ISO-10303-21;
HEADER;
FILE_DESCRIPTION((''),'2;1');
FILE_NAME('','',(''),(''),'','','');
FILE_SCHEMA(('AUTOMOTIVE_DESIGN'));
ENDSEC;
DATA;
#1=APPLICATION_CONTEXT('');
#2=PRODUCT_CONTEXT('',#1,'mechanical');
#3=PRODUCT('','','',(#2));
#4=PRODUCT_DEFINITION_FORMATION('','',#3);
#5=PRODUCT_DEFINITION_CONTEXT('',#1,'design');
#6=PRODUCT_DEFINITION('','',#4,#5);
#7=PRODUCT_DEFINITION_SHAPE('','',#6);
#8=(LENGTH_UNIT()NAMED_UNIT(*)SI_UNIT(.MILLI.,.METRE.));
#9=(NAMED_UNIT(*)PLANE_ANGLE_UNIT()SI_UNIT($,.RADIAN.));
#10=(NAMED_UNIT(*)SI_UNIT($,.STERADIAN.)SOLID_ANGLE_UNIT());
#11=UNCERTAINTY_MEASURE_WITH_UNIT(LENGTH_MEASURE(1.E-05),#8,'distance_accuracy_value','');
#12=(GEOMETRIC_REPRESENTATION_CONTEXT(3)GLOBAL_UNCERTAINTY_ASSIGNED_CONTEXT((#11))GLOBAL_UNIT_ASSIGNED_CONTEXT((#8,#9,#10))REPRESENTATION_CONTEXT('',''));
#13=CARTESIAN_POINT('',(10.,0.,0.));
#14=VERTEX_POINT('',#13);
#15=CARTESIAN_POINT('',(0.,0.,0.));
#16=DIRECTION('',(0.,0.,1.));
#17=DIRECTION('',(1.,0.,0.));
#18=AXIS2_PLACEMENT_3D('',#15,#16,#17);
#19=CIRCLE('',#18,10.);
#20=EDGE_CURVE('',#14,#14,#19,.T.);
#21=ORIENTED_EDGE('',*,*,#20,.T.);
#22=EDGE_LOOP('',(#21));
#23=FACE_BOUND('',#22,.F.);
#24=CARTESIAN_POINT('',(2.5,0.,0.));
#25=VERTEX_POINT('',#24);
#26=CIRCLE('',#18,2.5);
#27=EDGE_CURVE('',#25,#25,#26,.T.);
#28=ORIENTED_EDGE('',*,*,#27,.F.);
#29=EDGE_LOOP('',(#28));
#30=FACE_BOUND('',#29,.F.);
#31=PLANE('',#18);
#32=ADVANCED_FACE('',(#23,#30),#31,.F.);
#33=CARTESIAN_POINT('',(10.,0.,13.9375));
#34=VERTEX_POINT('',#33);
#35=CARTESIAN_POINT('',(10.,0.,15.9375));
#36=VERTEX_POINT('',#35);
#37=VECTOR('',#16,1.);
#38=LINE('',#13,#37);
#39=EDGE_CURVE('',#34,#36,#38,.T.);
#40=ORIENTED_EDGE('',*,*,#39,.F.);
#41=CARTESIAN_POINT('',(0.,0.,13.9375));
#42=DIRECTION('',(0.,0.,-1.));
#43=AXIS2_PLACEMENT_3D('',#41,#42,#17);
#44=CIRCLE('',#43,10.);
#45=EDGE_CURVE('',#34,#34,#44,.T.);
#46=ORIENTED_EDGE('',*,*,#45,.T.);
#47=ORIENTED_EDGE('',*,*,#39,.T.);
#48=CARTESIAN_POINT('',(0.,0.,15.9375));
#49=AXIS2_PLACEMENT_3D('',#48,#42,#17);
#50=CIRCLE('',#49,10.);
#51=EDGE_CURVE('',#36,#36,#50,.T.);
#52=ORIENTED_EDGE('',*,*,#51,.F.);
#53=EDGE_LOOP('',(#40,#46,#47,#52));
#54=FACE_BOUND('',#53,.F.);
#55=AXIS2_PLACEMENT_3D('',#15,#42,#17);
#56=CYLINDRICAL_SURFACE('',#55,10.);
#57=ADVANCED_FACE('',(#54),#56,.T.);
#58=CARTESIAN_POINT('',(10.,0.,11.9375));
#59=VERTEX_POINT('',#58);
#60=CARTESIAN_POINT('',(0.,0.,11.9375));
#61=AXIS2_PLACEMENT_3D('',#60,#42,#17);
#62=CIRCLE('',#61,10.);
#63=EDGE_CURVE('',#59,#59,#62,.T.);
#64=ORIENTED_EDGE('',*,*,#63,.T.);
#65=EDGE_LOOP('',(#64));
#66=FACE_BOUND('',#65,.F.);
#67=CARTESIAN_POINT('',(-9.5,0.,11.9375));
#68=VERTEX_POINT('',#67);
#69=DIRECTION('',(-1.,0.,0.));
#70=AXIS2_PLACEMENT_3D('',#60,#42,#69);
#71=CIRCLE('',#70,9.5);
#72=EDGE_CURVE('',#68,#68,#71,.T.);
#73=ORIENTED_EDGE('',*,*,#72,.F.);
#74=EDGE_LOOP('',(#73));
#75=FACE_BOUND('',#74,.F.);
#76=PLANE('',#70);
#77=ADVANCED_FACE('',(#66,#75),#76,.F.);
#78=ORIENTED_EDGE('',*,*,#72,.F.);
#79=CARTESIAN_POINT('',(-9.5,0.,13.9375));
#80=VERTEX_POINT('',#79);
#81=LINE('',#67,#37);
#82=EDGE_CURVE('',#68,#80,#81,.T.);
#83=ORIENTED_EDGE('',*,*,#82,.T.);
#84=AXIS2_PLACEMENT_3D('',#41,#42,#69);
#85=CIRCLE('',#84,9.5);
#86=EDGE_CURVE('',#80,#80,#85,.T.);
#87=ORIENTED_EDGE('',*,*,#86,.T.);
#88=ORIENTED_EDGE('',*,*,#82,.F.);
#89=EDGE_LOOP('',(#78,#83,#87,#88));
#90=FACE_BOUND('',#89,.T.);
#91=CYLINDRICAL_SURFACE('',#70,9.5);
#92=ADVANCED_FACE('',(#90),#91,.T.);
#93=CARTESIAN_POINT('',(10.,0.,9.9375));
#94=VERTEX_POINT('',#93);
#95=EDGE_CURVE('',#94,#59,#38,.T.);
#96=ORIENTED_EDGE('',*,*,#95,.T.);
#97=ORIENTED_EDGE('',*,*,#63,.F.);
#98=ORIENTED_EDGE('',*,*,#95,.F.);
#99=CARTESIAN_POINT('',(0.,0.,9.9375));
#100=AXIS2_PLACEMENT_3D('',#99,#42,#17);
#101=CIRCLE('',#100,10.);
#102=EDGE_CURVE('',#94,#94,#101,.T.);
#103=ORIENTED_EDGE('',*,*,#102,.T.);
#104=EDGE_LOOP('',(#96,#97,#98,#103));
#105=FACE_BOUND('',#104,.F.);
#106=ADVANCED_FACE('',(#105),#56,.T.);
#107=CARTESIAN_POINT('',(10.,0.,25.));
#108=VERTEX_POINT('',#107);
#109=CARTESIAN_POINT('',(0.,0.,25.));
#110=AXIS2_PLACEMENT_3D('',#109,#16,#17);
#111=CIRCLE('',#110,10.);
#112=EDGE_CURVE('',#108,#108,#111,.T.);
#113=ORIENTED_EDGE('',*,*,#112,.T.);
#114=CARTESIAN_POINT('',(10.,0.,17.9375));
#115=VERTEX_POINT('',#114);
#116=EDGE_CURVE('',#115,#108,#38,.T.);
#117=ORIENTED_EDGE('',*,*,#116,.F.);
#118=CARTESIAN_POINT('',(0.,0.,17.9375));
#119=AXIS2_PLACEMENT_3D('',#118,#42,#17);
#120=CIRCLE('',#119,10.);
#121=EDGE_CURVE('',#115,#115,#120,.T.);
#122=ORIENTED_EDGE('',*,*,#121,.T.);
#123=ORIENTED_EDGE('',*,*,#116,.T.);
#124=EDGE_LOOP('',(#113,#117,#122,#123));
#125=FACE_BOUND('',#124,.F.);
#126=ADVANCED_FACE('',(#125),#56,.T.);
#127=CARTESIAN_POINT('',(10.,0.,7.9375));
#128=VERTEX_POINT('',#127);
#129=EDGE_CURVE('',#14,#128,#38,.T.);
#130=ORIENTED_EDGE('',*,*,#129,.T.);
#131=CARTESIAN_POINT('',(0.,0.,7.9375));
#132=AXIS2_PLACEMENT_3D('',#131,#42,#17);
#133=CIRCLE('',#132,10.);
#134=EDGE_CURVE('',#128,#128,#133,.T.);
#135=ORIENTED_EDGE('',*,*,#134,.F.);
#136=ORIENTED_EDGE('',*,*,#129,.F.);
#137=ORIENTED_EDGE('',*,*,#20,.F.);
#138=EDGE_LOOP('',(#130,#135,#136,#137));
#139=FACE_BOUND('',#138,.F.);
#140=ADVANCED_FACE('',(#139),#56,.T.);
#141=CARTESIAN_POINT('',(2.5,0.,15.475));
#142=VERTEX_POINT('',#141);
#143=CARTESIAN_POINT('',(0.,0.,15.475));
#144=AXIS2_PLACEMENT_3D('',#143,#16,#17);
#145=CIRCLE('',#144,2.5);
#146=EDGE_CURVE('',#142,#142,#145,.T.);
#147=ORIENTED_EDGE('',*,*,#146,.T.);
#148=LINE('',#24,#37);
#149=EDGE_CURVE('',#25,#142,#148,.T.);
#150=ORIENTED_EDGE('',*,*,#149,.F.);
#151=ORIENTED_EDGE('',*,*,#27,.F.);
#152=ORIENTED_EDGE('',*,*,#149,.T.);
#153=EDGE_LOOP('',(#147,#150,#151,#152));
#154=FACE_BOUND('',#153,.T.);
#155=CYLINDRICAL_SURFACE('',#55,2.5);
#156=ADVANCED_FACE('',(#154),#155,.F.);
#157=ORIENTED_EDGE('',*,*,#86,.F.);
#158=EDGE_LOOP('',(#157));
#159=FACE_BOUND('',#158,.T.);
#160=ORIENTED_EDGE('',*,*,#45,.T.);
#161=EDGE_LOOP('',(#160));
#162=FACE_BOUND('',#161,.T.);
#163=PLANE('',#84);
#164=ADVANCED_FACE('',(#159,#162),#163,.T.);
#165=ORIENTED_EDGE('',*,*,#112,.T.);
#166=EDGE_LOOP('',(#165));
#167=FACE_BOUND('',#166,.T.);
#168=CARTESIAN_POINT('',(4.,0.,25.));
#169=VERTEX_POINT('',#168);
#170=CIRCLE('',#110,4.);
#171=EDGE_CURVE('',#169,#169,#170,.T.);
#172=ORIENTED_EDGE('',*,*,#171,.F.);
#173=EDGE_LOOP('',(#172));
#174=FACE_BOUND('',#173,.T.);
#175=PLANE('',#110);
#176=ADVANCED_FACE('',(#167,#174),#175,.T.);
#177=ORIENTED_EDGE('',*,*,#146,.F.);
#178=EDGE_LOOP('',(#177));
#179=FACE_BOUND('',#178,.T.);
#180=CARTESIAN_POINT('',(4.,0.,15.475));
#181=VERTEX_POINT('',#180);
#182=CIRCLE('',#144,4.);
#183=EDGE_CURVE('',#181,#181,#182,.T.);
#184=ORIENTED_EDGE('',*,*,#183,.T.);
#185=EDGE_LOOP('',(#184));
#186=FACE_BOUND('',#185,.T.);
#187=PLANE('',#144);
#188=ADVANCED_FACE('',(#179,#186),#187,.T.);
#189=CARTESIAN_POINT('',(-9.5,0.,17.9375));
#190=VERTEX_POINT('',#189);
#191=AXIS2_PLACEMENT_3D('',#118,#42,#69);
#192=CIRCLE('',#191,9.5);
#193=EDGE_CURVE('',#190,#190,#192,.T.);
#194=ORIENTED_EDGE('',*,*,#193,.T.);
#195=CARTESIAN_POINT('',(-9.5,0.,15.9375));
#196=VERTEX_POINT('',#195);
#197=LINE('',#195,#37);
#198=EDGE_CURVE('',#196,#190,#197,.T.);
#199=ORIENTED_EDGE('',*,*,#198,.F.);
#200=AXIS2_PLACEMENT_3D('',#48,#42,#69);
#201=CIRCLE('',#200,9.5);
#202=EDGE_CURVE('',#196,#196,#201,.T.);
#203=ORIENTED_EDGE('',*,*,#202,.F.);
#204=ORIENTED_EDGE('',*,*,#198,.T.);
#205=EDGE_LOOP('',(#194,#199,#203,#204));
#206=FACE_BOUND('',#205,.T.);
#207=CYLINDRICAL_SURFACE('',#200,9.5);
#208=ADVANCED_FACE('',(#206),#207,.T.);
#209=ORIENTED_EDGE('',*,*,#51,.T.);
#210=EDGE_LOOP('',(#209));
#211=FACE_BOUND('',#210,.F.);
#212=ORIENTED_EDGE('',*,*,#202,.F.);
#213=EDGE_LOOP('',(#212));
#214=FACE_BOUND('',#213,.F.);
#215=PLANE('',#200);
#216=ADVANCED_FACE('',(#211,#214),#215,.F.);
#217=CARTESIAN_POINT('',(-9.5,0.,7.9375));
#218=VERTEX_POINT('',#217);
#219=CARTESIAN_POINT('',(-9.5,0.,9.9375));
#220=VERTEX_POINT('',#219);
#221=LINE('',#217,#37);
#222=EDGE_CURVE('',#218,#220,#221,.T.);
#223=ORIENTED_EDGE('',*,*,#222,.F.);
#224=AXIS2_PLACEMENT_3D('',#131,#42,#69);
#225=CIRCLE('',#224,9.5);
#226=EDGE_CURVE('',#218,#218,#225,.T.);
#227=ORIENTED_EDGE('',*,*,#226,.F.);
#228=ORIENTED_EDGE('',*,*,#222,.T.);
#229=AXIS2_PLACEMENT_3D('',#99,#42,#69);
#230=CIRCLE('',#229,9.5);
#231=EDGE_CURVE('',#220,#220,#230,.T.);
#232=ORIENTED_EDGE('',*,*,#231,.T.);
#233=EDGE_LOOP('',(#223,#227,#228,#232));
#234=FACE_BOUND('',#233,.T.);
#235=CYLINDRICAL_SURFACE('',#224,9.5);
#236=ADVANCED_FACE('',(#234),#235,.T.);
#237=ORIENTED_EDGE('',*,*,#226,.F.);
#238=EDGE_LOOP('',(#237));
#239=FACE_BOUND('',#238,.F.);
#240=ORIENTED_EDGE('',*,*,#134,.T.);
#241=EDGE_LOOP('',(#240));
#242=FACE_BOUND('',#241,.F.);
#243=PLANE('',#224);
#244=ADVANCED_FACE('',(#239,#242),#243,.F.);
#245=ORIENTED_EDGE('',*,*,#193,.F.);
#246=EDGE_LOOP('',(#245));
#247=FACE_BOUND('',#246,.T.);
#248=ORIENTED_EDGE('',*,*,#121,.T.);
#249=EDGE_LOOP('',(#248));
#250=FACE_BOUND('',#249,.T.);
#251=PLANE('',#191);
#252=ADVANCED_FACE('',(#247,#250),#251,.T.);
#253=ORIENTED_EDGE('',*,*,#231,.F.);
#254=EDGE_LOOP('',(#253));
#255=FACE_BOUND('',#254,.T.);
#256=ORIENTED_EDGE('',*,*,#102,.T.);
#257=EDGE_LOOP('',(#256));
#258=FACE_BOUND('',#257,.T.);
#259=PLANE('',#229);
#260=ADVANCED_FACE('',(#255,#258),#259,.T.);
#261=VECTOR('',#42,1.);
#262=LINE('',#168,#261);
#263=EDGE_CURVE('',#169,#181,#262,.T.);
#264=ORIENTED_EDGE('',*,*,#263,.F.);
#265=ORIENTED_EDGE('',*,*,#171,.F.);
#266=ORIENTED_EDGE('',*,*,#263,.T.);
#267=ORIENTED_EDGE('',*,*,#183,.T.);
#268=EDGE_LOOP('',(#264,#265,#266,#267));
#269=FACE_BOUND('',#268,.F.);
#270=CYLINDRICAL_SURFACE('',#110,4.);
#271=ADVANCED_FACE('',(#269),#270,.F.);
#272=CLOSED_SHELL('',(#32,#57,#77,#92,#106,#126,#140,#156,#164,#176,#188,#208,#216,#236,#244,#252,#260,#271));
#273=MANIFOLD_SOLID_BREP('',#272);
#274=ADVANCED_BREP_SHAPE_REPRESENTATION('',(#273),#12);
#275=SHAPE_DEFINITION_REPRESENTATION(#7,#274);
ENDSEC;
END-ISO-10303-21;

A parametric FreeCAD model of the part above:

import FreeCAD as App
import Part
import Sketcher

V = App.Vector

doc = App.newDocument("Part")
body = doc.addObject("PartDesign::Body", "Body")

# Sketch on XY plane
sketch1 = body.newObject("Sketcher::SketchObject", "Sketch")
sketch1.AttachmentSupport = (doc.getObject("XY_Plane"), [""])
sketch1.MapMode = "FlatFace"
sketch1.addGeometry(Part.Circle(V(0, 0, 0), V(0, 0, 1), 10), False)
sketch1.addGeometry(Part.Circle(V(0, 0, 0), V(0, 0, 1), 2.5), False)
sketch1.addConstraint(Sketcher.Constraint("Coincident", 0, 3, -1, 1))
sketch1.addConstraint(Sketcher.Constraint("Coincident", 1, 3, -1, 1))
sketch1.addConstraint(Sketcher.Constraint("Diameter", 0, 20.0))
sketch1.addConstraint(Sketcher.Constraint("Diameter", 1, 5.0))
pad1 = body.newObject("PartDesign::Pad", "Pad")
pad1.Profile = sketch1
pad1.Length = 25

# Sketch on XY plane
sketch2 = body.newObject("Sketcher::SketchObject", "Sketch001")
sketch2.AttachmentSupport = (doc.getObject("XY_Plane"), [""])
sketch2.MapMode = "FlatFace"
sketch2.AttachmentOffset = App.Placement(V(0, 0, 25), App.Rotation())
sketch2.addGeometry(Part.Circle(V(0, 0, 0), V(0, 0, 1), 4), False)
sketch2.addGeometry(Part.Circle(V(0, 0, 0), V(0, 0, 1), 2.5), False)
sketch2.addConstraint(Sketcher.Constraint("Coincident", 0, 3, -1, 1))
sketch2.addConstraint(Sketcher.Constraint("Coincident", 1, 3, -1, 1))
sketch2.addConstraint(Sketcher.Constraint("Diameter", 0, 8.0))
sketch2.addConstraint(Sketcher.Constraint("Diameter", 1, 5.0))
pocket1 = body.newObject("PartDesign::Pocket", "Pocket")
pocket1.Profile = sketch2
pocket1.Length = 9.525

# Sketch on XY plane
sketch3 = body.newObject("Sketcher::SketchObject", "Sketch002")
sketch3.AttachmentSupport = (doc.getObject("XY_Plane"), [""])
sketch3.MapMode = "FlatFace"
sketch3.AttachmentOffset = App.Placement(V(0, 0, 7.9375), App.Rotation())
sketch3.addGeometry(Part.Circle(V(0, 0, 0), V(0, 0, 1), 11), False)
sketch3.addGeometry(Part.Circle(V(0, 0, 0), V(0, 0, 1), 10), False)
sketch3.addConstraint(Sketcher.Constraint("Coincident", 0, 3, -1, 1))
sketch3.addConstraint(Sketcher.Constraint("Coincident", 1, 3, -1, 1))
sketch3.addConstraint(Sketcher.Constraint("Diameter", 0, 22.0))
sketch3.addConstraint(Sketcher.Constraint("Diameter", 1, 19.0))
pocket2 = body.newObject("PartDesign::Pocket", "Pocket001")
pocket2.Profile = sketch3
pocket2.Length = 2
pocket2.Reversed = True
doc.recompute()

linearpattern = body.newObject("PartDesign::LinearPattern", "LinearPattern")
linearpattern.Originals = [pocket2]
linearpattern.Direction = (doc.getObject("Z_Axis"), [""])
linearpattern.Mode = "offset"
linearpattern.Offset = 4
linearpattern.Occurrences = 3
body.Tip = linearpattern

doc.recompute()
